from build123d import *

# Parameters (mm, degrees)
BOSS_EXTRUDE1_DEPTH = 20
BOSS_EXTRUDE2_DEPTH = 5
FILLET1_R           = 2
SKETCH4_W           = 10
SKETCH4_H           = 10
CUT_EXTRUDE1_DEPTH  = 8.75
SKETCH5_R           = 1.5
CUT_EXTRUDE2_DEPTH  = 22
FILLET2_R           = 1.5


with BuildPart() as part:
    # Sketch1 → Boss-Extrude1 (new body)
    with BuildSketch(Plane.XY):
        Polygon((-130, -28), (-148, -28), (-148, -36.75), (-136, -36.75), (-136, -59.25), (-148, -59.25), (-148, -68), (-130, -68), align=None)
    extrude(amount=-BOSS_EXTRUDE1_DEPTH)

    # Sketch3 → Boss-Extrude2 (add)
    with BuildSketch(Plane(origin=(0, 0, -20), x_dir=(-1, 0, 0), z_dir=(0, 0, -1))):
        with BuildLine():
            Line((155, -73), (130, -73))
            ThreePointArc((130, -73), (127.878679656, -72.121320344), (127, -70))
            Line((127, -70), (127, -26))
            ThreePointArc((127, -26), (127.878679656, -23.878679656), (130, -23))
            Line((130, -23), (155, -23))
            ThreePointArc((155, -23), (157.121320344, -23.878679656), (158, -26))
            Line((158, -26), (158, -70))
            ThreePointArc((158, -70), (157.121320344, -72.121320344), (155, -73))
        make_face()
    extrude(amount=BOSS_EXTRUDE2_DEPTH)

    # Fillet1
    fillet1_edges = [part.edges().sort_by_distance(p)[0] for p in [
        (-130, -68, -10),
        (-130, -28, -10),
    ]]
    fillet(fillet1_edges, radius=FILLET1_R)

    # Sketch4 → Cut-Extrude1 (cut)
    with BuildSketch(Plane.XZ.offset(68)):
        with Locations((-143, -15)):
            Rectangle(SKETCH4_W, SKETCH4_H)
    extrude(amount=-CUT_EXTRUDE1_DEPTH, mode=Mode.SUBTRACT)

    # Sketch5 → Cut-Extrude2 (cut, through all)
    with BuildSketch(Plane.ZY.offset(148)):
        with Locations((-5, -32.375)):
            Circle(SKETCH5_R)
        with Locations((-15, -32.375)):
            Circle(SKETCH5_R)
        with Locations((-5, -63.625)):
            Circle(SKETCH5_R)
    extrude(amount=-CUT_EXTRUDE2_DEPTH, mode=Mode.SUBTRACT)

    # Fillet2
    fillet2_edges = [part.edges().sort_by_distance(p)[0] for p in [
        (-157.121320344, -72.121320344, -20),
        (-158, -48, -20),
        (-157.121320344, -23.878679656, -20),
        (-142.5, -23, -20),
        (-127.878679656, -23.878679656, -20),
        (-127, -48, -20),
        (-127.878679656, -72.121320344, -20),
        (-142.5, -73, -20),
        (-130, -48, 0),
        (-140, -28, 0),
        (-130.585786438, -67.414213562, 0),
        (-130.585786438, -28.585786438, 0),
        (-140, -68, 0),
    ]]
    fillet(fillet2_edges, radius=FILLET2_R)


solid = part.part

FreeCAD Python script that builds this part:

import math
import FreeCAD as App
import Part
import Sketcher

V = App.Vector


def edges_at(feature, points):
    """Names of the edges that pass closest to the given points."""
    edges = feature.Shape.Edges
    near = lambda p: min(range(len(edges)), key=lambda i: edges[i].distToShape(Part.Vertex(*p))[0])
    return sorted({f"Edge{near(p) + 1}" for p in points})

doc = App.newDocument("Part")
body = doc.addObject("PartDesign::Body", "Body")

# Sketch on XY plane
sketch1 = doc.addObject("Sketcher::SketchObject", "Sketch")
body.addObject(sketch1)
sketch1.AttachmentSupport = (doc.XY_Plane, [""])
sketch1.MapMode = "FlatFace"
sketch1.addGeometry([
    Part.LineSegment(V(-130, -28, 0), V(-148, -28, 0)),  # 0
    Part.LineSegment(V(-148, -28, 0), V(-148, -36.75, 0)),  # 1
    Part.LineSegment(V(-148, -36.75, 0), V(-136, -36.75, 0)),  # 2
    Part.LineSegment(V(-136, -36.75, 0), V(-136, -59.25, 0)),  # 3
    Part.LineSegment(V(-136, -59.25, 0), V(-148, -59.25, 0)),  # 4
    Part.LineSegment(V(-148, -59.25, 0), V(-148, -68, 0)),  # 5
    Part.LineSegment(V(-148, -68, 0), V(-130, -68, 0)),  # 6
    Part.LineSegment(V(-130, -68, 0), V(-130, -28, 0)),  # 7
], False)
sketch1.addConstraint([
    Sketcher.Constraint("Coincident", 0, 2, 1, 1),
    Sketcher.Constraint("Coincident", 1, 2, 2, 1),
    Sketcher.Constraint("Coincident", 2, 2, 3, 1),
    Sketcher.Constraint("Coincident", 3, 2, 4, 1),
    Sketcher.Constraint("Coincident", 4, 2, 5, 1),
    Sketcher.Constraint("Coincident", 5, 2, 6, 1),
    Sketcher.Constraint("Coincident", 6, 2, 7, 1),
    Sketcher.Constraint("Coincident", 7, 2, 0, 1),
    Sketcher.Constraint("Horizontal", 0),
    Sketcher.Constraint("Vertical", 1),
    Sketcher.Constraint("Horizontal", 2),
    Sketcher.Constraint("Vertical", 3),
    Sketcher.Constraint("Horizontal", 4),
    Sketcher.Constraint("Vertical", 5),
    Sketcher.Constraint("Horizontal", 6),
    Sketcher.Constraint("Vertical", 7),
    Sketcher.Constraint("Vertical", 1, 2, 4, 2),
    Sketcher.Constraint("Equal", 1, 5),
    Sketcher.Constraint("DistanceX", 0, 2, 0, 1, 18.0),
    Sketcher.Constraint("DistanceX", 2, 1, 2, 2, 12.0),
    Sketcher.Constraint("DistanceY", 7, 1, 7, 2, 40.0),
    Sketcher.Constraint("DistanceY", 3, 2, 3, 1, 22.5),
    Sketcher.Constraint("DistanceX", 0, 2, -1, 1, 148.0),
    Sketcher.Constraint("DistanceY", 0, 2, -1, 1, 28.0),
])
pad1 = doc.addObject("PartDesign::Pad", "Pad")
body.addObject(pad1)
pad1.Profile = sketch1
pad1.Length = 20
pad1.Reversed = True

# Sketch on XY plane
sketch2 = doc.addObject("Sketcher::SketchObject", "Sketch001")
body.addObject(sketch2)
sketch2.AttachmentSupport = (doc.XY_Plane, [""])
sketch2.MapMode = "FlatFace"
sketch2.AttachmentOffset = App.Placement(V(0, 0, -20), App.Rotation())
sketch2.addGeometry([
    Part.LineSegment(V(-130, -73, 0), V(-155, -73, 0)),  # 0
    Part.ArcOfCircle(Part.Circle(V(-155, -70, 0), V(0, 0, 1), 3), math.radians(180), math.radians(270)),  # 1
    Part.LineSegment(V(-158, -70, 0), V(-158, -26, 0)),  # 2
    Part.ArcOfCircle(Part.Circle(V(-155, -26, 0), V(0, 0, 1), 3), math.radians(90), math.radians(180)),  # 3
    Part.LineSegment(V(-155, -23, 0), V(-130, -23, 0)),  # 4
    Part.ArcOfCircle(Part.Circle(V(-130, -26, 0), V(0, 0, 1), 3), math.radians(0), math.radians(90)),  # 5
    Part.LineSegment(V(-127, -26, 0), V(-127, -70, 0)),  # 6
    Part.ArcOfCircle(Part.Circle(V(-130, -70, 0), V(0, 0, 1), 3), math.radians(-90), math.radians(0)),  # 7
], False)
sketch2.addConstraint([
    Sketcher.Constraint("Tangent", 0, 2, 1, 2),
    Sketcher.Constraint("Tangent", 1, 1, 2, 1),
    Sketcher.Constraint("Tangent", 2, 2, 3, 2),
    Sketcher.Constraint("Tangent", 3, 1, 4, 1),
    Sketcher.Constraint("Tangent", 4, 2, 5, 2),
    Sketcher.Constraint("Tangent", 5, 1, 6, 1),
    Sketcher.Constraint("Tangent", 6, 2, 7, 2),
    Sketcher.Constraint("Tangent", 7, 1, 0, 1),
    Sketcher.Constraint("Horizontal", 0),
    Sketcher.Constraint("Vertical", 2),
    Sketcher.Constraint("Horizontal", 4),
    Sketcher.Constraint("Vertical", 6),
    Sketcher.Constraint("Equal", 1, 3),
    Sketcher.Constraint("Equal", 3, 5),
    Sketcher.Constraint("Equal", 5, 7),
    Sketcher.Constraint("Radius", 1, 3.0),
    Sketcher.Constraint("DistanceX", 0, 2, 0, 1, 25.0),
    Sketcher.Constraint("DistanceY", 2, 1, 2, 2, 44.0),
    Sketcher.Constraint("DistanceX", 1, 3, -1, 1, 155.0),
    Sketcher.Constraint("DistanceY", 1, 3, -1, 1, 70.0),
])
pad2 = doc.addObject("PartDesign::Pad", "Pad001")
body.addObject(pad2)
pad2.Profile = sketch2
pad2.Length = 5
pad2.Reversed = True
doc.recompute()

fillet = doc.addObject("PartDesign::Fillet", "Fillet")
body.addObject(fillet)
fillet.Base = (pad2, edges_at(pad2, [(-130, -68, -10), (-130, -28, -10)]))
fillet.Radius = 2

# Sketch on XZ plane
sketch3 = doc.addObject("Sketcher::SketchObject", "Sketch002")
body.addObject(sketch3)
sketch3.AttachmentSupport = (doc.XZ_Plane, [""])
sketch3.MapMode = "FlatFace"
sketch3.AttachmentOffset = App.Placement(V(0, 0, 68), App.Rotation())
sketch3.addGeometry([
    Part.LineSegment(V(-148, -10, 0), V(-148, -20, 0)),
    Part.LineSegment(V(-148, -20, 0), V(-138, -20, 0)),
    Part.LineSegment(V(-138, -20, 0), V(-138, -10, 0)),
    Part.LineSegment(V(-138, -10, 0), V(-148, -10, 0)),
], False)
sketch3.addConstraint([
    Sketcher.Constraint("Coincident", 0, 2, 1, 1),
    Sketcher.Constraint("Coincident", 1, 2, 2, 1),
    Sketcher.Constraint("Coincident", 2, 2, 3, 1),
    Sketcher.Constraint("Coincident", 3, 2, 0, 1),
    Sketcher.Constraint("Vertical", 0),
    Sketcher.Constraint("Horizontal", 1),
    Sketcher.Constraint("Vertical", 2),
    Sketcher.Constraint("Horizontal", 3),
    Sketcher.Constraint("Equal", 3, 0),
    Sketcher.Constraint("DistanceX", 1, 1, 1, 2, 10.0),
    Sketcher.Constraint("DistanceX", 0, 2, -1, 1, 148.0),
    Sketcher.Constraint("DistanceY", 0, 2, -1, 1, 20.0),
])
pocket1 = doc.addObject("PartDesign::Pocket", "Pocket")
body.addObject(pocket1)
pocket1.Profile = sketch3
pocket1.Length = 8.75

# Sketch on YZ plane
sketch4 = doc.addObject("Sketcher::SketchObject", "Sketch003")
body.addObject(sketch4)
sketch4.AttachmentSupport = (doc.YZ_Plane, [""])
sketch4.MapMode = "FlatFace"
sketch4.AttachmentOffset = App.Placement(V(0, 0, -148), App.Rotation())
sketch4.addGeometry([
    Part.Circle(V(-32.375, -5, 0), V(0, 0, 1), 1.5),
    Part.Circle(V(-32.375, -15, 0), V(0, 0, 1), 1.5),
    Part.Circle(V(-63.625, -5, 0), V(0, 0, 1), 1.5),
], False)
sketch4.addConstraint([
    Sketcher.Constraint("Equal", 0, 1),
    Sketcher.Constraint("Equal", 1, 2),
    Sketcher.Constraint("Horizontal", 0, 3, 2, 3),
    Sketcher.Constraint("Vertical", 0, 3, 1, 3),
    Sketcher.Constraint("Diameter", 0, 3.0),
    Sketcher.Constraint("DistanceY", 0, 3, -1, 1, 5.0),
    Sketcher.Constraint("DistanceY", 1, 3, -1, 1, 15.0),
    Sketcher.Constraint("DistanceX", 2, 3, 0, 3, 31.25),
    Sketcher.Constraint("DistanceX", 0, 3, -1, 1, 32.375),
])
pocket2 = doc.addObject("PartDesign::Pocket", "Pocket001")
body.addObject(pocket2)
pocket2.Profile = sketch4
pocket2.Type = "ThroughAll"
pocket2.Reversed = True
doc.recompute()

fillet2 = doc.addObject("PartDesign::Fillet", "Fillet001")
body.addObject(fillet2)
fillet2.Base = (pocket2, edges_at(pocket2, [
    (-157.121, -72.121, -20),
    (-158, -48, -20),
    (-157.121, -23.879, -20),
    (-142.5, -23, -20),
    (-127.879, -23.879, -20),
    (-127, -48, -20),
    (-127.879, -72.121, -20),
    (-142.5, -73, -20),
    (-130, -48, 0),
    (-140, -28, 0),
    (-130.586, -67.414, 0),
    (-130.586, -28.586, 0),
    (-140, -68, 0),
]))
fillet2.Radius = 1.5

doc.recompute()
